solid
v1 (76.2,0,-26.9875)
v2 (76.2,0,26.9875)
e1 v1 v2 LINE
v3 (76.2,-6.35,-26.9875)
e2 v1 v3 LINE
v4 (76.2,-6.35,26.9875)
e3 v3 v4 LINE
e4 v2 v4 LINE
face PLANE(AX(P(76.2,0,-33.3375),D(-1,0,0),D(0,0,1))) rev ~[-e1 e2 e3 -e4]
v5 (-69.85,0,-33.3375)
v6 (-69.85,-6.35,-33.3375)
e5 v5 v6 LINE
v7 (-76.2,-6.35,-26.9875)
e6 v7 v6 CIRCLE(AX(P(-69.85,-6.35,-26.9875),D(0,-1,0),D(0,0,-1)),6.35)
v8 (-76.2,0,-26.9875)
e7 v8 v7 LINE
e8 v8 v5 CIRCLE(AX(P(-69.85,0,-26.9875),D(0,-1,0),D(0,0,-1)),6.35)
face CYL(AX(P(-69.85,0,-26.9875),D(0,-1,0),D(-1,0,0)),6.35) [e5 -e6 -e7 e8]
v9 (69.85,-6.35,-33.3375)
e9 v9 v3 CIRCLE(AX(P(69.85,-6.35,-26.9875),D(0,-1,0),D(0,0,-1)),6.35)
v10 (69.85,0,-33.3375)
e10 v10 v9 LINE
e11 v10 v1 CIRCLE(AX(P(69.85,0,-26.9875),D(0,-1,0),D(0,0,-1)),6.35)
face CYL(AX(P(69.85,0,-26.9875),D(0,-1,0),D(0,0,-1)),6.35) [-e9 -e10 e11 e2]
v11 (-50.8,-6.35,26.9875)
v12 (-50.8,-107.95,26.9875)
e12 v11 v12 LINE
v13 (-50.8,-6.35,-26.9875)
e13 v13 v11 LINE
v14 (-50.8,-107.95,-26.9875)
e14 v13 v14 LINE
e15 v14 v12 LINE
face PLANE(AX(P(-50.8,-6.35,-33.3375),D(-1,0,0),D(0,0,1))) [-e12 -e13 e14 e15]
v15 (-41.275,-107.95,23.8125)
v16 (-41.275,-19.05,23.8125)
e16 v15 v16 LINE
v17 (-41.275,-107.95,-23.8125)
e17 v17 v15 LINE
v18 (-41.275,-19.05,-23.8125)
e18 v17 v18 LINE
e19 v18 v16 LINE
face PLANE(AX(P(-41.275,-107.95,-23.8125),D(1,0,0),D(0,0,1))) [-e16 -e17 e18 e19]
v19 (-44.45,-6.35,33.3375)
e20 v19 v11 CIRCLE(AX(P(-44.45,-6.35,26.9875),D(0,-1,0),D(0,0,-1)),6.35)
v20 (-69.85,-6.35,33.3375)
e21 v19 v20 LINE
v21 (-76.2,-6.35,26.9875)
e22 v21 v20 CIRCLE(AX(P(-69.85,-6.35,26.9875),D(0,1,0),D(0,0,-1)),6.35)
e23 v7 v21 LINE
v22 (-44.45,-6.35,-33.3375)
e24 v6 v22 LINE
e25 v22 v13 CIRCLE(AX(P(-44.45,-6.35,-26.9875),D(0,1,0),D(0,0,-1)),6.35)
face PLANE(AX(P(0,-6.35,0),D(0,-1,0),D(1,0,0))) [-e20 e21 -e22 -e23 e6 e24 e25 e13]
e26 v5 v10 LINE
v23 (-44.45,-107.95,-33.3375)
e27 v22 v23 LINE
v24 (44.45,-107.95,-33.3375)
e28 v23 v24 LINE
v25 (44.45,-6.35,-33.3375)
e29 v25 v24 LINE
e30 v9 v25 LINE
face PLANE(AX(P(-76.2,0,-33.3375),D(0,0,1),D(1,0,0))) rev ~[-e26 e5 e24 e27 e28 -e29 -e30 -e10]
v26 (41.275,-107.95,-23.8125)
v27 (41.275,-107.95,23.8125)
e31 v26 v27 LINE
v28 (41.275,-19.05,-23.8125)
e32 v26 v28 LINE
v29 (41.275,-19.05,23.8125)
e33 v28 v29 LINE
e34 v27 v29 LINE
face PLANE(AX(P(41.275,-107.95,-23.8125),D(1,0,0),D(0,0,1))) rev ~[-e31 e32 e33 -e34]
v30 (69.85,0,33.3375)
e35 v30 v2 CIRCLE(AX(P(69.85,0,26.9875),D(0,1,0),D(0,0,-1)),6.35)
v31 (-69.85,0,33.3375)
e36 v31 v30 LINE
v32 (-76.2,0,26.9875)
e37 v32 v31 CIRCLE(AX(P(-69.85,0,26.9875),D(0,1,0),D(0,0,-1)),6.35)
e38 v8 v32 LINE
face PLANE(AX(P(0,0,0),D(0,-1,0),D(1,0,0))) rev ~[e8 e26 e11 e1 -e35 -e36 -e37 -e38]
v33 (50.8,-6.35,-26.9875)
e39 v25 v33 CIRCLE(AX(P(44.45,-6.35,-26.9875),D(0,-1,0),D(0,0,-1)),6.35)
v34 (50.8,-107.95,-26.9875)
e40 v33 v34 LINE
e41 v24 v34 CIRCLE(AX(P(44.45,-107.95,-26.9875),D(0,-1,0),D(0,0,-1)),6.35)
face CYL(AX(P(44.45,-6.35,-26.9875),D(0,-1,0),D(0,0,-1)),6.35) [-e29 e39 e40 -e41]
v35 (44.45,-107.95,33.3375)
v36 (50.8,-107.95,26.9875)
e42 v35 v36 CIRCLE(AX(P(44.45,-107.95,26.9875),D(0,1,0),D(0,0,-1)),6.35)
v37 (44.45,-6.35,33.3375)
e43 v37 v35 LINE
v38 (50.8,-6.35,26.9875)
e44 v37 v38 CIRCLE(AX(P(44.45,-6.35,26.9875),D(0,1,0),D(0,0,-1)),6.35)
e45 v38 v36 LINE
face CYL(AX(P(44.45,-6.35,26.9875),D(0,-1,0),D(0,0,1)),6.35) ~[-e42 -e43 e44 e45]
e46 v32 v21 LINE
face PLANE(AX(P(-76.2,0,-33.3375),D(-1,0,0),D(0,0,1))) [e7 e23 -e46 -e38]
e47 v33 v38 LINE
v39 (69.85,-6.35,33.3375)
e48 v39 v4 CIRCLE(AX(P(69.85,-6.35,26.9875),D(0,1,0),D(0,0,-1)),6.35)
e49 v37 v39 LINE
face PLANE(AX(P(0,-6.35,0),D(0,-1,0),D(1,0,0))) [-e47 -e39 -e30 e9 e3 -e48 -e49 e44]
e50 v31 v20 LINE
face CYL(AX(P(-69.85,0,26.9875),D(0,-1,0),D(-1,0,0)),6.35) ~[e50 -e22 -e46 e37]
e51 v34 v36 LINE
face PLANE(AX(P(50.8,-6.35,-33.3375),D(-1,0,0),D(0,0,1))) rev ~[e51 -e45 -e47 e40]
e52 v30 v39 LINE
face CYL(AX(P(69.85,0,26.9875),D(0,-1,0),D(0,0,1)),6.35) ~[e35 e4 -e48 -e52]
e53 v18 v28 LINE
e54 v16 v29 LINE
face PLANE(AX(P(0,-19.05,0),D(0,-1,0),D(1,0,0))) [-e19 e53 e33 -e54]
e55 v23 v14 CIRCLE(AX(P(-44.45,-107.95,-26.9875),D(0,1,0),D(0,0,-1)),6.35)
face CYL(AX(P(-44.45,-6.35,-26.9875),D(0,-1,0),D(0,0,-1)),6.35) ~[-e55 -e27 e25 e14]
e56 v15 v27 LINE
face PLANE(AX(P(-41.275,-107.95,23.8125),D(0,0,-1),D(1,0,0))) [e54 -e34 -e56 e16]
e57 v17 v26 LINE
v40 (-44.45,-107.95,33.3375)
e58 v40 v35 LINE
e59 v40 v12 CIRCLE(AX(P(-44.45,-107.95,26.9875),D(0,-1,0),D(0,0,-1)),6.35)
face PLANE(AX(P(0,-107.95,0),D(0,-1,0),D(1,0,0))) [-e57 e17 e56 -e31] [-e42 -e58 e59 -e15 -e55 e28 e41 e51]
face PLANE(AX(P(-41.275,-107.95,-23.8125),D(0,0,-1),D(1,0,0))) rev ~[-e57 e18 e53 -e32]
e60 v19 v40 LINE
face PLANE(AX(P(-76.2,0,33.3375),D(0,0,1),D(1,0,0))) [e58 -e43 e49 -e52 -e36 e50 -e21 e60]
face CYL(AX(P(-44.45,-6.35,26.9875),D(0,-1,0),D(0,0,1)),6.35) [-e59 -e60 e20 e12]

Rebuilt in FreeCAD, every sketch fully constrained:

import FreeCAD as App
import Part
import Sketcher

V = App.Vector
Q = App.Units.Quantity


def edges_at(feature, points):
    """Names of the edges that pass closest to the given points."""
    edges = feature.Shape.Edges
    near = lambda p: min(range(len(edges)), key=lambda i: edges[i].distToShape(Part.Vertex(*p))[0])
    return sorted({f"Edge{near(p) + 1}" for p in points})


def add_polygon(sketch, points):
    """Adds a closed chain of lines whose ends are joined by coincident constraints."""
    first, n = sketch.GeometryCount, len(points)
    for a, b in zip(points, points[1:] + points[:1]):
        sketch.addGeometry(Part.LineSegment(App.Vector(*a, 0), App.Vector(*b, 0)), False)
    for i in range(n):
        sketch.addConstraint(Sketcher.Constraint("Coincident", first + i, 2, first + (i + 1) % n, 1))

doc = App.newDocument("Part")
body = doc.addObject("PartDesign::Body", "Body")

# Sketch on XZ plane
sketch1 = body.newObject("Sketcher::SketchObject", "Sketch")
sketch1.AttachmentSupport = (doc.getObject("XZ_Plane"), [""])
sketch1.MapMode = "FlatFace"
add_polygon(sketch1, [(-76.2, 33.3375), (-76.2, -33.3375), (76.2, -33.3375), (76.2, 33.3375)])  # lines 0-3
sketch1.addConstraint([
    Sketcher.Constraint("Vertical", 0),
    Sketcher.Constraint("Horizontal", 1),
    Sketcher.Constraint("Vertical", 2),
    Sketcher.Constraint("Horizontal", 3),
    Sketcher.Constraint("Symmetric", 0, 2, 2, 2, -1, 1),
    Sketcher.Constraint("DistanceX", 1, 1, 1, 2, Q("6 in")),
    Sketcher.Constraint("DistanceY", 0, 2, 0, 1, Q("2.625 in")),
])
pad1 = body.newObject("PartDesign::Pad", "Pad")
pad1.Profile = sketch1
pad1.Length = Q("0.25 in")

# Sketch on XZ plane
sketch2 = body.newObject("Sketcher::SketchObject", "Sketch001")
sketch2.AttachmentSupport = (doc.getObject("XZ_Plane"), [""])
sketch2.MapMode = "FlatFace"
sketch2.AttachmentOffset = App.Placement(V(0, 0, 0.25 * 25.4), App.Rotation())
add_polygon(sketch2, [(-50.8, 33.3375), (-50.8, -33.3375), (50.8, -33.3375), (50.8, 33.3375)])  # lines 0-3
sketch2.addConstraint([
    Sketcher.Constraint("Vertical", 0),
    Sketcher.Constraint("Horizontal", 1),
    Sketcher.Constraint("Vertical", 2),
    Sketcher.Constraint("Horizontal", 3),
    Sketcher.Constraint("Symmetric", 0, 2, 2, 2, -1, 1),
    Sketcher.Constraint("DistanceX", 1, 1, 1, 2, Q("4 in")),
    Sketcher.Constraint("DistanceY", 0, 2, 0, 1, Q("2.625 in")),
])
pad2 = body.newObject("PartDesign::Pad", "Pad001")
pad2.Profile = sketch2
pad2.Length = Q("4 in")
doc.recompute()

fillet = body.newObject("PartDesign::Fillet", "Fillet")
fillet.Base = (pad2, edges_at(pad2, [
    (-50.8, -57.15, 33.337),
    (-76.2, -3.175, 33.337),
    (-76.2, -3.175, -33.337),
    (50.8, -57.15, -33.337),
    (-50.8, -57.15, -33.337),
    (50.8, -57.15, 33.337),
    (76.2, -3.175, 33.337),
    (76.2, -3.175, -33.337),
]))
fillet.Radius = Q("0.25 in")

# Sketch on XZ plane
sketch3 = body.newObject("Sketcher::SketchObject", "Sketch002")
sketch3.AttachmentSupport = (doc.getObject("XZ_Plane"), [""])
sketch3.MapMode = "FlatFace"
sketch3.AttachmentOffset = App.Placement(V(0, 0, 4.25 * 25.4), App.Rotation())
add_polygon(sketch3, [(-41.275, 23.8125), (-41.275, -23.8125), (41.275, -23.8125), (41.275, 23.8125)])  # lines 0-3
sketch3.addConstraint([
    Sketcher.Constraint("Vertical", 0),
    Sketcher.Constraint("Horizontal", 1),
    Sketcher.Constraint("Vertical", 2),
    Sketcher.Constraint("Horizontal", 3),
    Sketcher.Constraint("Symmetric", 0, 2, 2, 2, -1, 1),
    Sketcher.Constraint("DistanceX", 1, 1, 1, 2, Q("3.25 in")),
    Sketcher.Constraint("DistanceY", 0, 2, 0, 1, Q("1.875 in")),
])
pocket1 = body.newObject("PartDesign::Pocket", "Pocket")
pocket1.Profile = sketch3
pocket1.Length = Q("3.5 in")

doc.recompute()
